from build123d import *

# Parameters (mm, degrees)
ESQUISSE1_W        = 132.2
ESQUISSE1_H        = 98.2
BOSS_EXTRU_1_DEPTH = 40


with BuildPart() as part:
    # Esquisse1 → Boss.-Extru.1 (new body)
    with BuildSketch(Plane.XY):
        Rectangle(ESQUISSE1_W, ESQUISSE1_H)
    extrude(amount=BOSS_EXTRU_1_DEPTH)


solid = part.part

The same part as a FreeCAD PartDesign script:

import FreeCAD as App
import Part
import Sketcher
from FreeCAD import Vector


def add_polygon(sketch, points):
    """Adds a closed chain of lines whose ends are joined by coincident constraints."""
    first, n = sketch.GeometryCount, len(points)
    for a, b in zip(points, points[1:] + points[:1]):
        sketch.addGeometry(Part.LineSegment(App.Vector(*a, 0), App.Vector(*b, 0)), False)
    for i in range(n):
        sketch.addConstraint(Sketcher.Constraint("Coincident", first + i, 2, first + (i + 1) % n, 1))

doc = App.newDocument("Part")
params = doc.addObject("Spreadsheet::Sheet", "Params")
for row, (alias, value) in enumerate([
    ("sketch1_width", "132.2 mm"),
    ("sketch1_height", "98.2 mm"),
    ("pad1_length", "40 mm"),
], start=1):
    params.set(f"A{row}", alias)
    params.set(f"B{row}", "=" + value)
    params.setAlias(f"B{row}", alias)

body = doc.addObject("PartDesign::Body", "Body")

# Sketch on XY plane
sketch1 = body.newObject("Sketcher::SketchObject", "Sketch")
sketch1.AttachmentSupport = (doc.getObject("XY_Plane"), [""])
sketch1.MapMode = "FlatFace"
add_polygon(sketch1, [(-66, 49), (-66, -49), (66, -49), (66, 49)])  # lines 0-3
sketch1.addConstraint([
    Sketcher.Constraint("Vertical", 0),
    Sketcher.Constraint("Horizontal", 1),
    Sketcher.Constraint("Vertical", 2),
    Sketcher.Constraint("Horizontal", 3),
    Sketcher.Constraint("Symmetric", 0, 2, 2, 2, -1, 1),
    Sketcher.Constraint("DistanceX", 1, 1, 1, 2, 132.2),
    Sketcher.Constraint("DistanceY", 0, 2, 0, 1, 98.2),
])
sketch1.setExpression("Constraints[9]", "Params.sketch1_width")
sketch1.setExpression("Constraints[10]", "Params.sketch1_height")
pad1 = body.newObject("PartDesign::Pad", "Pad")
pad1.Profile = sketch1
pad1.setExpression("Length", "Params.pad1_length")

doc.recompute()
